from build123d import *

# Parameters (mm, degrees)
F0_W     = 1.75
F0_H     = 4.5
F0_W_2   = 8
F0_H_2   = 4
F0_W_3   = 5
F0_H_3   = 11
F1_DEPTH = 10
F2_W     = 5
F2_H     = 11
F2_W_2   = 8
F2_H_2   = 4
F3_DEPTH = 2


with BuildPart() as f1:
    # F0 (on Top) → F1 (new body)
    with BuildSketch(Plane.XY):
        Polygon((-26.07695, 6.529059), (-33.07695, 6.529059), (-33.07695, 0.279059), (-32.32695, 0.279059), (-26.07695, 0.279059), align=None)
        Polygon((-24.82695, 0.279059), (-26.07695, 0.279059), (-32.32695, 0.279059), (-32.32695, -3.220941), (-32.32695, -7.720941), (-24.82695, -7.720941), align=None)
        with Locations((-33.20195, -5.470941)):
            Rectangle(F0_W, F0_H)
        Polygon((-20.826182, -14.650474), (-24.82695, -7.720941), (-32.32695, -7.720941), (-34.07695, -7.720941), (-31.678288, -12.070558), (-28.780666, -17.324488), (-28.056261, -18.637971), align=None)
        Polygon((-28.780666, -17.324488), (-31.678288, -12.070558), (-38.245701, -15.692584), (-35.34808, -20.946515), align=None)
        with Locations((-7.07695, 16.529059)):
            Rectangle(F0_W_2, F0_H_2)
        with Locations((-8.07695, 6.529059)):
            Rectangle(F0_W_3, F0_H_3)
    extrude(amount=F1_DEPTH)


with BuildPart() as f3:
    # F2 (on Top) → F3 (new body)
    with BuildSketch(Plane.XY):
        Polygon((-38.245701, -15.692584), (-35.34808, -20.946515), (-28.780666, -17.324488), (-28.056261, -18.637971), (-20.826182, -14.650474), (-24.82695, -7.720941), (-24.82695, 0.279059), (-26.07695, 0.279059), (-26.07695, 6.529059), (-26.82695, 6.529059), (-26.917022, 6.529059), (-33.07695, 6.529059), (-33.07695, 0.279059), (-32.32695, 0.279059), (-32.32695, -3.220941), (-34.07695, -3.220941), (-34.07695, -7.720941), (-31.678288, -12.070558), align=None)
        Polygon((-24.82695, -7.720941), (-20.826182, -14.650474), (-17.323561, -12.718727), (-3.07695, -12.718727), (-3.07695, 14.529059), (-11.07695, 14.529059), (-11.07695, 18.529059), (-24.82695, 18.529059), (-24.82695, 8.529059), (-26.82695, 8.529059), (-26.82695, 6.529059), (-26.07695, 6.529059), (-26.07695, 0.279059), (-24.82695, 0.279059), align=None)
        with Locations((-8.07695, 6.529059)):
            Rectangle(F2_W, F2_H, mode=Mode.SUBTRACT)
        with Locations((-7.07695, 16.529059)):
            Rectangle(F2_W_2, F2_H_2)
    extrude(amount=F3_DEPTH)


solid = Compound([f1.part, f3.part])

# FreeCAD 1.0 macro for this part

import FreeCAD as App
import Part
import Sketcher

V = App.Vector
Q = App.Units.Quantity


def add_polygon(sketch, points):
    """Adds a closed chain of lines whose ends are joined by coincident constraints."""
    first, n = sketch.GeometryCount, len(points)
    for a, b in zip(points, points[1:] + points[:1]):
        sketch.addGeometry(Part.LineSegment(App.Vector(*a, 0), App.Vector(*b, 0)), False)
    for i in range(n):
        sketch.addConstraint(Sketcher.Constraint("Coincident", first + i, 2, first + (i + 1) % n, 1))

doc = App.newDocument("Part")
body = doc.addObject("PartDesign::Body", "Body")
body.AllowCompound = True

# Sketch on XY plane
sketch1 = body.newObject("Sketcher::SketchObject", "Sketch")
sketch1.AttachmentSupport = (doc.getObject("XY_Plane"), [""])
sketch1.MapMode = "FlatFace"
add_polygon(sketch1, [(-26.1, 6.5), (-33.1, 6.5), (-33.1, 0.3), (-32.3, 0.3), (-32.3, -3.2), (-34.1, -3.2), (-34.1, -7.7), (-31.7, -12.1), (-38.2, -15.7), (-35.3, -20.9), (-28.8, -17.3), (-28.1, -18.6), (-20.8, -14.7), (-24.8, -7.7), (-24.8, 0.3), (-26.1, 0.3)])  # lines 0-15
add_polygon(sketch1, [(-11.1, 18.5), (-11.1, 14.5), (-3.1, 14.5), (-3.1, 18.5)])  # lines 16-19
add_polygon(sketch1, [(-10.6, 12), (-10.6, 1), (-5.6, 1), (-5.6, 12)])  # lines 20-23
sketch1.addConstraint([
    Sketcher.Constraint("Horizontal", 0),
    Sketcher.Constraint("Vertical", 1),
    Sketcher.Constraint("Horizontal", 2),
    Sketcher.Constraint("Vertical", 3),
    Sketcher.Constraint("Horizontal", 4),
    Sketcher.Constraint("Vertical", 5),
    Sketcher.Constraint("Vertical", 13),
    Sketcher.Constraint("Horizontal", 14),
    Sketcher.Constraint("Vertical", 15),
    Sketcher.Constraint("Vertical", 16),
    Sketcher.Constraint("Horizontal", 17),
    Sketcher.Constraint("Vertical", 18),
    Sketcher.Constraint("Horizontal", 19),
    Sketcher.Constraint("Vertical", 20),
    Sketcher.Constraint("Horizontal", 21),
    Sketcher.Constraint("Vertical", 22),
    Sketcher.Constraint("Horizontal", 23),
    Sketcher.Constraint("Perpendicular", 7, 8),
    Sketcher.Constraint("Perpendicular", 8, 9),
    Sketcher.Constraint("Perpendicular", 9, 10),
    Sketcher.Constraint("Perpendicular", 10, 11),
    Sketcher.Constraint("Horizontal", 5, 2, 12, 2),
    Sketcher.Constraint("Horizontal", 2, 2, 13, 2),
    Sketcher.Constraint("Equal", 19, 13),
    Sketcher.Constraint("Equal", 7, 9),
    Sketcher.Constraint("DistanceX", 0, 2, 0, 1, 7.0),
    Sketcher.Constraint("DistanceX", 17, 1, 17, 2, 8.0),
    Sketcher.Constraint("DistanceX", 21, 1, 21, 2, 5.0),
    Sketcher.Constraint("DistanceY", 16, 2, 16, 1, 4.0),
    Sketcher.Constraint("DistanceY", 20, 2, 20, 1, 11.0),
    Sketcher.Constraint("Angle", 12, Q("120.000002 deg")),
    Sketcher.Constraint("Distance", 8, 6.0),
    Sketcher.Constraint("DistanceY", 3, 2, 3, 1, 3.5),
    Sketcher.Constraint("DistanceX", 4, 2, 1, 2, 1.0),
    Sketcher.Constraint("DistanceX", 15, 2, 16, 2, 15.0),
    Sketcher.Constraint("DistanceY", 15, 2, 16, 2, 8.0),
    Sketcher.Constraint("Distance", 7, 7.499999),
    Sketcher.Constraint("Distance", 10, 1.5),
    Sketcher.Constraint("DistanceX", 2, 1, 2, 2, 0.75),
    Sketcher.Constraint("DistanceX", 14, 2, 14, 1, 1.25),
    Sketcher.Constraint("DistanceY", 1, 2, 1, 1, 6.25),
    Sketcher.Constraint("DistanceX", 16, 2, 20, 2, 0.5),
    Sketcher.Constraint("DistanceY", 20, 2, 16, 2, 13.5),
    Sketcher.Constraint("DistanceX", 7, 2, -1, 1, 38.245701),
    Sketcher.Constraint("DistanceX", 8, 2, 11, 2, 14.521898),
    Sketcher.Constraint("DistanceX", 0, 2, -1, 1, 33.07695),
    Sketcher.Constraint("DistanceY", -1, 1, 0, 2, 6.529059),
    Sketcher.Constraint("DistanceX", 8, 2, -1, 1, 35.34808),
])
pad1 = body.newObject("PartDesign::Pad", "Pad")
pad1.Profile = sketch1
pad1.Length = 10
body2 = doc.addObject("PartDesign::Body", "Body001")

# Sketch on XY plane
sketch2 = body2.newObject("Sketcher::SketchObject", "Sketch001")
sketch2.AttachmentSupport = (doc.getObject("XY_Plane001"), [""])
sketch2.MapMode = "FlatFace"
add_polygon(sketch2, [(-38.2, -15.7), (-35.3, -20.9), (-28.8, -17.3), (-28.1, -18.6), (-20.8, -14.7), (-17.3, -12.7), (-3.1, -12.7), (-3.1, 18.5), (-24.8, 18.5), (-24.8, 8.5), (-26.8, 8.5), (-26.8, 6.5), (-33.1, 6.5), (-33.1, 0.3), (-32.3, 0.3), (-32.3, -3.2), (-34.1, -3.2), (-34.1, -7.7), (-31.7, -12.1)])  # lines 0-18
add_polygon(sketch2, [(-5.6, 1), (-10.6, 1), (-10.6, 12), (-5.6, 12)])  # lines 19-22
sketch2.addConstraint([
    Sketcher.Constraint("Horizontal", 5),
    Sketcher.Constraint("Vertical", 6),
    Sketcher.Constraint("Horizontal", 7),
    Sketcher.Constraint("Vertical", 8),
    Sketcher.Constraint("Horizontal", 9),
    Sketcher.Constraint("Vertical", 10),
    Sketcher.Constraint("Horizontal", 11),
    Sketcher.Constraint("Vertical", 12),
    Sketcher.Constraint("Horizontal", 13),
    Sketcher.Constraint("Vertical", 14),
    Sketcher.Constraint("Horizontal", 15),
    Sketcher.Constraint("Vertical", 16),
    Sketcher.Constraint("Horizontal", 19),
    Sketcher.Constraint("Vertical", 20),
    Sketcher.Constraint("Horizontal", 21),
    Sketcher.Constraint("Vertical", 22),
    Sketcher.Constraint("Perpendicular", 0, 1),
    Sketcher.Constraint("Perpendicular", 1, 2),
    Sketcher.Constraint("Perpendicular", 2, 3),
    Sketcher.Constraint("Parallel", 3, 4),
    Sketcher.Constraint("Parallel", 4, 18),
    Sketcher.Constraint("Equal", 9, 10),
    Sketcher.Constraint("Equal", 11, 12),
    Sketcher.Constraint("Equal", 1, 18),
    Sketcher.Constraint("DistanceX", 9, 2, 9, 1, 2.0),
    Sketcher.Constraint("DistanceX", 19, 2, 19, 1, 5.0),
    Sketcher.Constraint("DistanceY", 8, 2, 8, 1, 10.0),
    Sketcher.Constraint("DistanceY", 20, 1, 20, 2, 11.0),
    Sketcher.Constraint("Distance", 0, 6.0),
    Sketcher.Constraint("Distance", 4, 4.0),
    Sketcher.Constraint("DistanceY", 14, 2, 14, 1, 3.5),
    Sketcher.Constraint("DistanceY", 16, 2, 16, 1, 4.5),
    Sketcher.Constraint("DistanceX", 15, 2, 12, 2, 1.0),
    Sketcher.Constraint("Distance", 1, 7.5),
    Sketcher.Constraint("Distance", 2, 1.5),
    Sketcher.Constraint("DistanceX", 7, 2, 7, 1, 21.75),
    Sketcher.Constraint("DistanceX", 11, 2, 11, 1, 6.25),
    Sketcher.Constraint("DistanceX", 13, 1, 13, 2, 0.75),
    Sketcher.Constraint("DistanceX", 19, 2, 5, 2, 7.5),
    Sketcher.Constraint("DistanceY", 19, 2, 8, 2, 7.5),
    Sketcher.Constraint("DistanceX", 5, 1, 5, 2, 14.246611),
    Sketcher.Constraint("DistanceX", 18, 2, -1, 1, 38.245701),
    Sketcher.Constraint("DistanceX", 0, 2, 3, 2, 14.521898),
    Sketcher.Constraint("DistanceX", 2, 2, 4, 2, 10.7327),
    Sketcher.Constraint("DistanceY", 6, 1, 6, 2, 31.247786),
    Sketcher.Constraint("DistanceY", 2, 2, -1, 1, 18.637971),
])
pad2 = body2.newObject("PartDesign::Pad", "Pad001")
pad2.Profile = sketch2
pad2.Length = 2

doc.recompute()
